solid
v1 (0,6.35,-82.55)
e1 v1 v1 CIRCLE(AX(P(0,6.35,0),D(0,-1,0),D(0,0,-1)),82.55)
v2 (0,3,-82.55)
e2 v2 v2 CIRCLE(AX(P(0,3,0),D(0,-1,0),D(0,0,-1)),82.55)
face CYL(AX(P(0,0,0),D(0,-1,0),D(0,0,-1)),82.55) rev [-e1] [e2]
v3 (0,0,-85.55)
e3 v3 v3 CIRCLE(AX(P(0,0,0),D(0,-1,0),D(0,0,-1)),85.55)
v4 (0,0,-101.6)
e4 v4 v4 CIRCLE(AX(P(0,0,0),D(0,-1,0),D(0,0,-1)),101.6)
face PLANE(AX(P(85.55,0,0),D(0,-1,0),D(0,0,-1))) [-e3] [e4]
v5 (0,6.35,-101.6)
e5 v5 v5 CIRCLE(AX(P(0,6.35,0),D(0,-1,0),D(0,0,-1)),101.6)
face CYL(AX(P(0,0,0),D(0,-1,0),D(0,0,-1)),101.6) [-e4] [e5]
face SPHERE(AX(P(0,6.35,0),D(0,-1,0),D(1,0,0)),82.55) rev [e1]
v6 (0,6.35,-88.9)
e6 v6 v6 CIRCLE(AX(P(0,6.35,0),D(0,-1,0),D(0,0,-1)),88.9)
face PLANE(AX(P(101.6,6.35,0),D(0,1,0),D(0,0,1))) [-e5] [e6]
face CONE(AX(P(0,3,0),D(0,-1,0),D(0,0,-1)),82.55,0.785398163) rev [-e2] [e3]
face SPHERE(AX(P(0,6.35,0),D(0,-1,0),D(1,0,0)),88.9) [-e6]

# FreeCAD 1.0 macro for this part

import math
import FreeCAD as App
import Part
import Sketcher

V = App.Vector
Q = App.Units.Quantity

doc = App.newDocument("Part")
body = doc.addObject("PartDesign::Body", "Body")

# Sketch on XY plane
sketch1 = body.newObject("Sketcher::SketchObject", "Sketch")
sketch1.AttachmentSupport = (doc.getObject("XY_Plane"), [""])
sketch1.MapMode = "FlatFace"
sketch1.addGeometry(Part.LineSegment(V(85.5, 0, 0), V(101.6, 0, 0)), False)
sketch1.addGeometry(Part.LineSegment(V(101.6, 0, 0), V(101.6, 6.3, 0)), False)
sketch1.addGeometry(Part.LineSegment(V(101.6, 6.3, 0), V(88.9, 6.3, 0)), False)
sketch1.addGeometry(Part.ArcOfCircle(Part.Circle(V(0, 6.3, 0), V(0, 0, 1), 88.9), math.radians(0), math.radians(90)), False)
sketch1.addGeometry(Part.LineSegment(V(0, 95.2, 0), V(0, 88.9, 0)), False)
sketch1.addGeometry(Part.ArcOfCircle(Part.Circle(V(0, 6.3, 0), V(0, 0, 1), 82.5), math.radians(0), math.radians(90)), False)
sketch1.addGeometry(Part.LineSegment(V(82.5, 6.3, 0), V(82.5, 3, 0)), False)
sketch1.addGeometry(Part.LineSegment(V(82.5, 3, 0), V(85.5, 0, 0)), False)
sketch1.addConstraint(Sketcher.Constraint("Coincident", 0, 2, 1, 1))
sketch1.addConstraint(Sketcher.Constraint("Coincident", 1, 2, 2, 1))
sketch1.addConstraint(Sketcher.Constraint("Coincident", 2, 2, 3, 1))
sketch1.addConstraint(Sketcher.Constraint("Coincident", 3, 2, 4, 1))
sketch1.addConstraint(Sketcher.Constraint("Coincident", 4, 2, 5, 2))
sketch1.addConstraint(Sketcher.Constraint("Tangent", 5, 1, 6, 1))
sketch1.addConstraint(Sketcher.Constraint("Coincident", 6, 2, 7, 1))
sketch1.addConstraint(Sketcher.Constraint("Coincident", 7, 2, 0, 1))
sketch1.addConstraint(Sketcher.Constraint("Horizontal", 0))
sketch1.addConstraint(Sketcher.Constraint("Vertical", 1))
sketch1.addConstraint(Sketcher.Constraint("Horizontal", 2))
sketch1.addConstraint(Sketcher.Constraint("Vertical", 4))
sketch1.addConstraint(Sketcher.Constraint("Vertical", 6))
sketch1.addConstraint(Sketcher.Constraint("Coincident", 5, 3, 3, 3))
sketch1.addConstraint(Sketcher.Constraint("PointOnObject", 3, 3, -2))
sketch1.addConstraint(Sketcher.Constraint("PointOnObject", 0, 2, -1))
sketch1.addConstraint(Sketcher.Constraint("PointOnObject", 3, 2, -2))
sketch1.addConstraint(Sketcher.Constraint("Horizontal", 5, 3, 1, 2))
sketch1.addConstraint(Sketcher.Constraint("Equal", 1, 4))
sketch1.addConstraint(Sketcher.Constraint("Radius", 3, Q("3.5 in")))
sketch1.addConstraint(Sketcher.Constraint("Radius", 5, Q("3.25 in")))
sketch1.addConstraint(Sketcher.Constraint("DistanceX", 2, 2, 2, 1, Q("0.5 in")))
sketch1.addConstraint(Sketcher.Constraint("Angle", 7, Q("-45 deg")))
sketch1.addConstraint(Sketcher.Constraint("DistanceX", 0, 1, 0, 2, 16.05))
revolution = body.newObject("PartDesign::Revolution", "Revolution")
revolution.Profile = sketch1
revolution.ReferenceAxis = (sketch1, ["V_Axis"])
revolution.Angle = 360

doc.recompute()
